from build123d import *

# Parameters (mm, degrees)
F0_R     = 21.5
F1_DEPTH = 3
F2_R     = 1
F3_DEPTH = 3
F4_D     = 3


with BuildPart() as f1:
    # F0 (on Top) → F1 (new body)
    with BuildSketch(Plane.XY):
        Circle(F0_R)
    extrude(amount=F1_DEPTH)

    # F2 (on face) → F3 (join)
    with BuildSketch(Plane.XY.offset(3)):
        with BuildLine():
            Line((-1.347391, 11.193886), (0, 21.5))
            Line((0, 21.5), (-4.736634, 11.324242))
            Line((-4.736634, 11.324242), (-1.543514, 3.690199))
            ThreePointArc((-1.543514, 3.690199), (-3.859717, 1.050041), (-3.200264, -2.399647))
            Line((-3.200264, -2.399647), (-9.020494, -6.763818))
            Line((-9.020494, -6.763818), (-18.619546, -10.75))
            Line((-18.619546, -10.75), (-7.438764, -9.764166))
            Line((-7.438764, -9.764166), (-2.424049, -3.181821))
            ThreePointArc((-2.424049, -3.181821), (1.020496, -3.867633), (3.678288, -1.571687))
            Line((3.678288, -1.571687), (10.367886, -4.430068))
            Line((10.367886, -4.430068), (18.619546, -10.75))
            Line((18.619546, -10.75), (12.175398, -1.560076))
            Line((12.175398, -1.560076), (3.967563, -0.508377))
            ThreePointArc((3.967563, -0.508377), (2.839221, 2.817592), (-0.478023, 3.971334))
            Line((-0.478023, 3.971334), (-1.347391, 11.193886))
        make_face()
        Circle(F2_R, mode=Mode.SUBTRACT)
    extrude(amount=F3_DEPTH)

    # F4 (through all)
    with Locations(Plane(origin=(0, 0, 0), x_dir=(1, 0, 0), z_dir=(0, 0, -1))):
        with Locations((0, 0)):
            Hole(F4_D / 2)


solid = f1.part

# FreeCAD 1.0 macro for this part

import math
import FreeCAD as App
import Part
import Sketcher

V = App.Vector
Q = App.Units.Quantity

doc = App.newDocument("Part")
params = doc.addObject("Spreadsheet::Sheet", "Params")
for row, (alias, value) in enumerate([
    ("sketch1_diameter", "43 mm"),
    ("pad1_length", "3 mm"),
    ("sketch2_diameter", "2 mm"),
    ("sketch2_radius", "4 mm"),
    ("pad2_length", "3 mm"),
    ("sketch3_diameter", "3 mm"),
    ("hole_diameter", "3 mm"),
], start=1):
    params.set(f"A{row}", alias)
    params.set(f"B{row}", "=" + value)
    params.setAlias(f"B{row}", alias)

body = doc.addObject("PartDesign::Body", "Body")

# Sketch on XY plane
sketch1 = body.newObject("Sketcher::SketchObject", "Sketch")
sketch1.AttachmentSupport = (doc.getObject("XY_Plane"), [""])
sketch1.MapMode = "FlatFace"
sketch1.addGeometry(Part.Circle(V(0, 0, 0), V(0, 0, 1), 21.5), False)
sketch1.addConstraint(Sketcher.Constraint("Coincident", 0, 3, -1, 1))
sketch1.addConstraint(Sketcher.Constraint("Diameter", 0, Q("43 mm")))
sketch1.setExpression("Constraints[1]", "Params.sketch1_diameter")
pad1 = body.newObject("PartDesign::Pad", "Pad")
pad1.Profile = sketch1
pad1.setExpression("Length", "Params.pad1_length")

# Sketch on XY plane
sketch2 = body.newObject("Sketcher::SketchObject", "Sketch001")
sketch2.AttachmentSupport = (doc.getObject("XY_Plane"), [""])
sketch2.MapMode = "FlatFace"
sketch2.AttachmentOffset = App.Placement(V(0, 0, 3), App.Rotation())
sketch2.addGeometry(Part.LineSegment(V(-1.347391, 11.193886, 0), V(0, 21.5, 0)), False)
sketch2.addGeometry(Part.LineSegment(V(0, 21.5, 0), V(-4.736634, 11.324242, 0)), False)
sketch2.addGeometry(Part.LineSegment(V(-4.736634, 11.324242, 0), V(-1.543514, 3.690199, 0)), False)
sketch2.addGeometry(Part.ArcOfCircle(Part.Circle(V(0, 0.000001, 0), V(0, 0, 1), 4), math.radians(112.698286), math.radians(216.863596)), False)
sketch2.addGeometry(Part.LineSegment(V(-3.200264, -2.399647, 0), V(-9.020494, -6.763818, 0)), False)
sketch2.addGeometry(Part.LineSegment(V(-9.020494, -6.763818, 0), V(-18.619546, -10.75, 0)), False)
sketch2.addGeometry(Part.LineSegment(V(-18.619546, -10.75, 0), V(-7.438764, -9.764166, 0)), False)
sketch2.addGeometry(Part.LineSegment(V(-7.438764, -9.764166, 0), V(-2.424049, -3.181821, 0)), False)
sketch2.addGeometry(Part.ArcOfCircle(Part.Circle(V(0, 0.000001, 0), V(0, 0, 1), 4.000001), math.radians(-127.30171), math.radians(-23.136435)), False)
sketch2.addGeometry(Part.LineSegment(V(3.678288, -1.571687, 0), V(10.367886, -4.430068, 0)), False)
sketch2.addGeometry(Part.LineSegment(V(10.367886, -4.430068, 0), V(18.619546, -10.75, 0)), False)
sketch2.addGeometry(Part.LineSegment(V(18.619546, -10.75, 0), V(12.175398, -1.560076, 0)), False)
sketch2.addGeometry(Part.LineSegment(V(12.175398, -1.560076, 0), V(3.967563, -0.508377, 0)), False)
sketch2.addGeometry(Part.ArcOfCircle(Part.Circle(V(0, 0, 0), V(0, 0, 1), 4), math.radians(-7.301705), math.radians(96.863578)), False)
sketch2.addGeometry(Part.LineSegment(V(-0.478023, 3.971334, 0), V(-1.347391, 11.193886, 0)), False)
sketch2.addGeometry(Part.Circle(V(0, 0, 0), V(0, 0, 1), 1), False)
sketch2.addConstraint(Sketcher.Constraint("Coincident", 0, 2, 1, 1))
sketch2.addConstraint(Sketcher.Constraint("Coincident", 1, 2, 2, 1))
sketch2.addConstraint(Sketcher.Constraint("Coincident", 2, 2, 3, 1))
sketch2.addConstraint(Sketcher.Constraint("Coincident", 3, 2, 4, 1))
sketch2.addConstraint(Sketcher.Constraint("Coincident", 4, 2, 5, 1))
sketch2.addConstraint(Sketcher.Constraint("Coincident", 5, 2, 6, 1))
sketch2.addConstraint(Sketcher.Constraint("Coincident", 6, 2, 7, 1))
sketch2.addConstraint(Sketcher.Constraint("Coincident", 7, 2, 8, 1))
sketch2.addConstraint(Sketcher.Constraint("Coincident", 8, 2, 9, 1))
sketch2.addConstraint(Sketcher.Constraint("Coincident", 9, 2, 10, 1))
sketch2.addConstraint(Sketcher.Constraint("Coincident", 10, 2, 11, 1))
sketch2.addConstraint(Sketcher.Constraint("Coincident", 11, 2, 12, 1))
sketch2.addConstraint(Sketcher.Constraint("Coincident", 12, 2, 13, 1))
sketch2.addConstraint(Sketcher.Constraint("Coincident", 13, 2, 14, 1))
sketch2.addConstraint(Sketcher.Constraint("Coincident", 14, 2, 0, 1))
sketch2.addConstraint(Sketcher.Constraint("Coincident", 3, 3, -1, 1))
sketch2.addConstraint(Sketcher.Constraint("Coincident", 8, 3, -1, 1))
sketch2.addConstraint(Sketcher.Constraint("Coincident", 13, 3, -1, 1))
sketch2.addConstraint(Sketcher.Constraint("Coincident", 15, 3, -1, 1))
sketch2.addConstraint(Sketcher.Constraint("Equal", 3, 8))
sketch2.addConstraint(Sketcher.Constraint("Equal", 8, 13))
sketch2.addConstraint(Sketcher.Constraint("Symmetric", 5, 2, 10, 2, -2))
sketch2.addConstraint(Sketcher.Constraint("PointOnObject", 0, 2, -2))
sketch2.addConstraint(Sketcher.Constraint("Equal", 0, 5))
sketch2.addConstraint(Sketcher.Constraint("Equal", 1, 6))
sketch2.addConstraint(Sketcher.Constraint("Equal", 2, 7))
sketch2.addConstraint(Sketcher.Constraint("Equal", 4, 9))
sketch2.addConstraint(Sketcher.Constraint("Equal", 5, 10))
sketch2.addConstraint(Sketcher.Constraint("Equal", 6, 11))
sketch2.addConstraint(Sketcher.Constraint("Equal", 7, 12))
sketch2.addConstraint(Sketcher.Constraint("Equal", 9, 14))
sketch2.addConstraint(Sketcher.Constraint("Diameter", 15, Q("2 mm")))
sketch2.addConstraint(Sketcher.Constraint("Radius", 3, Q("4 mm")))
sketch2.addConstraint(Sketcher.Constraint("DistanceY", -1, 1, 0, 2, Q("21.5 mm")))
sketch2.addConstraint(Sketcher.Constraint("DistanceY", 5, 2, -1, 1, Q("10.75 mm")))
sketch2.addConstraint(Sketcher.Constraint("DistanceY", -1, 1, 2, 2, Q("3.690199 mm")))
sketch2.addConstraint(Sketcher.Constraint("DistanceX", 6, 2, 3, 2, Q("4.2385 mm")))
sketch2.addConstraint(Sketcher.Constraint("DistanceX", 8, 2, 9, 2, Q("6.689598 mm")))
sketch2.addConstraint(Sketcher.Constraint("DistanceX", 13, 3, 11, 2, Q("12.175398 mm")))
sketch2.addConstraint(Sketcher.Constraint("Distance", 1, Q("11.224159 mm")))
sketch2.addConstraint(Sketcher.Constraint("Distance", 2, Q("8.27494 mm")))
sketch2.addConstraint(Sketcher.Constraint("DistanceX", 7, 2, -1, 1, Q("2.424049 mm")))
sketch2.addConstraint(Sketcher.Constraint("DistanceY", 9, 2, -1, 1, Q("4.430068 mm")))
sketch2.addConstraint(Sketcher.Constraint("DistanceX", 14, 2, -1, 1, Q("1.347391 mm")))
sketch2.addConstraint(Sketcher.Constraint("DistanceY", 8, 2, 12, 2, Q("1.06331 mm")))
sketch2.addConstraint(Sketcher.Constraint("DistanceX", 2, 2, 13, 2, Q("1.065491 mm")))
sketch2.setExpression("Constraints[31]", "Params.sketch2_diameter")
sketch2.setExpression("Constraints[32]", "Params.sketch2_radius")
pad2 = body.newObject("PartDesign::Pad", "Pad001")
pad2.Profile = sketch2
pad2.setExpression("Length", "Params.pad2_length")

# Sketch on XY plane
sketch3 = body.newObject("Sketcher::SketchObject", "Sketch002")
sketch3.AttachmentSupport = (doc.getObject("XY_Plane"), [""])
sketch3.MapMode = "FlatFace"
sketch3.addGeometry(Part.Circle(V(0, 0, 0), V(0, 0, 1), 1.5), False)
sketch3.addConstraint(Sketcher.Constraint("Coincident", 0, 3, -1, 1))
sketch3.addConstraint(Sketcher.Constraint("Diameter", 0, Q("3 mm")))
sketch3.setExpression("Constraints[1]", "Params.sketch3_diameter")
doc.recompute()
hole = body.newObject("PartDesign::Hole", "Hole")
hole.Profile = sketch3
hole.ThreadType = "None"
hole.setExpression("Diameter", "Params.hole_diameter")
hole.DepthType = "ThroughAll"
hole.Reversed = True

doc.recompute()
